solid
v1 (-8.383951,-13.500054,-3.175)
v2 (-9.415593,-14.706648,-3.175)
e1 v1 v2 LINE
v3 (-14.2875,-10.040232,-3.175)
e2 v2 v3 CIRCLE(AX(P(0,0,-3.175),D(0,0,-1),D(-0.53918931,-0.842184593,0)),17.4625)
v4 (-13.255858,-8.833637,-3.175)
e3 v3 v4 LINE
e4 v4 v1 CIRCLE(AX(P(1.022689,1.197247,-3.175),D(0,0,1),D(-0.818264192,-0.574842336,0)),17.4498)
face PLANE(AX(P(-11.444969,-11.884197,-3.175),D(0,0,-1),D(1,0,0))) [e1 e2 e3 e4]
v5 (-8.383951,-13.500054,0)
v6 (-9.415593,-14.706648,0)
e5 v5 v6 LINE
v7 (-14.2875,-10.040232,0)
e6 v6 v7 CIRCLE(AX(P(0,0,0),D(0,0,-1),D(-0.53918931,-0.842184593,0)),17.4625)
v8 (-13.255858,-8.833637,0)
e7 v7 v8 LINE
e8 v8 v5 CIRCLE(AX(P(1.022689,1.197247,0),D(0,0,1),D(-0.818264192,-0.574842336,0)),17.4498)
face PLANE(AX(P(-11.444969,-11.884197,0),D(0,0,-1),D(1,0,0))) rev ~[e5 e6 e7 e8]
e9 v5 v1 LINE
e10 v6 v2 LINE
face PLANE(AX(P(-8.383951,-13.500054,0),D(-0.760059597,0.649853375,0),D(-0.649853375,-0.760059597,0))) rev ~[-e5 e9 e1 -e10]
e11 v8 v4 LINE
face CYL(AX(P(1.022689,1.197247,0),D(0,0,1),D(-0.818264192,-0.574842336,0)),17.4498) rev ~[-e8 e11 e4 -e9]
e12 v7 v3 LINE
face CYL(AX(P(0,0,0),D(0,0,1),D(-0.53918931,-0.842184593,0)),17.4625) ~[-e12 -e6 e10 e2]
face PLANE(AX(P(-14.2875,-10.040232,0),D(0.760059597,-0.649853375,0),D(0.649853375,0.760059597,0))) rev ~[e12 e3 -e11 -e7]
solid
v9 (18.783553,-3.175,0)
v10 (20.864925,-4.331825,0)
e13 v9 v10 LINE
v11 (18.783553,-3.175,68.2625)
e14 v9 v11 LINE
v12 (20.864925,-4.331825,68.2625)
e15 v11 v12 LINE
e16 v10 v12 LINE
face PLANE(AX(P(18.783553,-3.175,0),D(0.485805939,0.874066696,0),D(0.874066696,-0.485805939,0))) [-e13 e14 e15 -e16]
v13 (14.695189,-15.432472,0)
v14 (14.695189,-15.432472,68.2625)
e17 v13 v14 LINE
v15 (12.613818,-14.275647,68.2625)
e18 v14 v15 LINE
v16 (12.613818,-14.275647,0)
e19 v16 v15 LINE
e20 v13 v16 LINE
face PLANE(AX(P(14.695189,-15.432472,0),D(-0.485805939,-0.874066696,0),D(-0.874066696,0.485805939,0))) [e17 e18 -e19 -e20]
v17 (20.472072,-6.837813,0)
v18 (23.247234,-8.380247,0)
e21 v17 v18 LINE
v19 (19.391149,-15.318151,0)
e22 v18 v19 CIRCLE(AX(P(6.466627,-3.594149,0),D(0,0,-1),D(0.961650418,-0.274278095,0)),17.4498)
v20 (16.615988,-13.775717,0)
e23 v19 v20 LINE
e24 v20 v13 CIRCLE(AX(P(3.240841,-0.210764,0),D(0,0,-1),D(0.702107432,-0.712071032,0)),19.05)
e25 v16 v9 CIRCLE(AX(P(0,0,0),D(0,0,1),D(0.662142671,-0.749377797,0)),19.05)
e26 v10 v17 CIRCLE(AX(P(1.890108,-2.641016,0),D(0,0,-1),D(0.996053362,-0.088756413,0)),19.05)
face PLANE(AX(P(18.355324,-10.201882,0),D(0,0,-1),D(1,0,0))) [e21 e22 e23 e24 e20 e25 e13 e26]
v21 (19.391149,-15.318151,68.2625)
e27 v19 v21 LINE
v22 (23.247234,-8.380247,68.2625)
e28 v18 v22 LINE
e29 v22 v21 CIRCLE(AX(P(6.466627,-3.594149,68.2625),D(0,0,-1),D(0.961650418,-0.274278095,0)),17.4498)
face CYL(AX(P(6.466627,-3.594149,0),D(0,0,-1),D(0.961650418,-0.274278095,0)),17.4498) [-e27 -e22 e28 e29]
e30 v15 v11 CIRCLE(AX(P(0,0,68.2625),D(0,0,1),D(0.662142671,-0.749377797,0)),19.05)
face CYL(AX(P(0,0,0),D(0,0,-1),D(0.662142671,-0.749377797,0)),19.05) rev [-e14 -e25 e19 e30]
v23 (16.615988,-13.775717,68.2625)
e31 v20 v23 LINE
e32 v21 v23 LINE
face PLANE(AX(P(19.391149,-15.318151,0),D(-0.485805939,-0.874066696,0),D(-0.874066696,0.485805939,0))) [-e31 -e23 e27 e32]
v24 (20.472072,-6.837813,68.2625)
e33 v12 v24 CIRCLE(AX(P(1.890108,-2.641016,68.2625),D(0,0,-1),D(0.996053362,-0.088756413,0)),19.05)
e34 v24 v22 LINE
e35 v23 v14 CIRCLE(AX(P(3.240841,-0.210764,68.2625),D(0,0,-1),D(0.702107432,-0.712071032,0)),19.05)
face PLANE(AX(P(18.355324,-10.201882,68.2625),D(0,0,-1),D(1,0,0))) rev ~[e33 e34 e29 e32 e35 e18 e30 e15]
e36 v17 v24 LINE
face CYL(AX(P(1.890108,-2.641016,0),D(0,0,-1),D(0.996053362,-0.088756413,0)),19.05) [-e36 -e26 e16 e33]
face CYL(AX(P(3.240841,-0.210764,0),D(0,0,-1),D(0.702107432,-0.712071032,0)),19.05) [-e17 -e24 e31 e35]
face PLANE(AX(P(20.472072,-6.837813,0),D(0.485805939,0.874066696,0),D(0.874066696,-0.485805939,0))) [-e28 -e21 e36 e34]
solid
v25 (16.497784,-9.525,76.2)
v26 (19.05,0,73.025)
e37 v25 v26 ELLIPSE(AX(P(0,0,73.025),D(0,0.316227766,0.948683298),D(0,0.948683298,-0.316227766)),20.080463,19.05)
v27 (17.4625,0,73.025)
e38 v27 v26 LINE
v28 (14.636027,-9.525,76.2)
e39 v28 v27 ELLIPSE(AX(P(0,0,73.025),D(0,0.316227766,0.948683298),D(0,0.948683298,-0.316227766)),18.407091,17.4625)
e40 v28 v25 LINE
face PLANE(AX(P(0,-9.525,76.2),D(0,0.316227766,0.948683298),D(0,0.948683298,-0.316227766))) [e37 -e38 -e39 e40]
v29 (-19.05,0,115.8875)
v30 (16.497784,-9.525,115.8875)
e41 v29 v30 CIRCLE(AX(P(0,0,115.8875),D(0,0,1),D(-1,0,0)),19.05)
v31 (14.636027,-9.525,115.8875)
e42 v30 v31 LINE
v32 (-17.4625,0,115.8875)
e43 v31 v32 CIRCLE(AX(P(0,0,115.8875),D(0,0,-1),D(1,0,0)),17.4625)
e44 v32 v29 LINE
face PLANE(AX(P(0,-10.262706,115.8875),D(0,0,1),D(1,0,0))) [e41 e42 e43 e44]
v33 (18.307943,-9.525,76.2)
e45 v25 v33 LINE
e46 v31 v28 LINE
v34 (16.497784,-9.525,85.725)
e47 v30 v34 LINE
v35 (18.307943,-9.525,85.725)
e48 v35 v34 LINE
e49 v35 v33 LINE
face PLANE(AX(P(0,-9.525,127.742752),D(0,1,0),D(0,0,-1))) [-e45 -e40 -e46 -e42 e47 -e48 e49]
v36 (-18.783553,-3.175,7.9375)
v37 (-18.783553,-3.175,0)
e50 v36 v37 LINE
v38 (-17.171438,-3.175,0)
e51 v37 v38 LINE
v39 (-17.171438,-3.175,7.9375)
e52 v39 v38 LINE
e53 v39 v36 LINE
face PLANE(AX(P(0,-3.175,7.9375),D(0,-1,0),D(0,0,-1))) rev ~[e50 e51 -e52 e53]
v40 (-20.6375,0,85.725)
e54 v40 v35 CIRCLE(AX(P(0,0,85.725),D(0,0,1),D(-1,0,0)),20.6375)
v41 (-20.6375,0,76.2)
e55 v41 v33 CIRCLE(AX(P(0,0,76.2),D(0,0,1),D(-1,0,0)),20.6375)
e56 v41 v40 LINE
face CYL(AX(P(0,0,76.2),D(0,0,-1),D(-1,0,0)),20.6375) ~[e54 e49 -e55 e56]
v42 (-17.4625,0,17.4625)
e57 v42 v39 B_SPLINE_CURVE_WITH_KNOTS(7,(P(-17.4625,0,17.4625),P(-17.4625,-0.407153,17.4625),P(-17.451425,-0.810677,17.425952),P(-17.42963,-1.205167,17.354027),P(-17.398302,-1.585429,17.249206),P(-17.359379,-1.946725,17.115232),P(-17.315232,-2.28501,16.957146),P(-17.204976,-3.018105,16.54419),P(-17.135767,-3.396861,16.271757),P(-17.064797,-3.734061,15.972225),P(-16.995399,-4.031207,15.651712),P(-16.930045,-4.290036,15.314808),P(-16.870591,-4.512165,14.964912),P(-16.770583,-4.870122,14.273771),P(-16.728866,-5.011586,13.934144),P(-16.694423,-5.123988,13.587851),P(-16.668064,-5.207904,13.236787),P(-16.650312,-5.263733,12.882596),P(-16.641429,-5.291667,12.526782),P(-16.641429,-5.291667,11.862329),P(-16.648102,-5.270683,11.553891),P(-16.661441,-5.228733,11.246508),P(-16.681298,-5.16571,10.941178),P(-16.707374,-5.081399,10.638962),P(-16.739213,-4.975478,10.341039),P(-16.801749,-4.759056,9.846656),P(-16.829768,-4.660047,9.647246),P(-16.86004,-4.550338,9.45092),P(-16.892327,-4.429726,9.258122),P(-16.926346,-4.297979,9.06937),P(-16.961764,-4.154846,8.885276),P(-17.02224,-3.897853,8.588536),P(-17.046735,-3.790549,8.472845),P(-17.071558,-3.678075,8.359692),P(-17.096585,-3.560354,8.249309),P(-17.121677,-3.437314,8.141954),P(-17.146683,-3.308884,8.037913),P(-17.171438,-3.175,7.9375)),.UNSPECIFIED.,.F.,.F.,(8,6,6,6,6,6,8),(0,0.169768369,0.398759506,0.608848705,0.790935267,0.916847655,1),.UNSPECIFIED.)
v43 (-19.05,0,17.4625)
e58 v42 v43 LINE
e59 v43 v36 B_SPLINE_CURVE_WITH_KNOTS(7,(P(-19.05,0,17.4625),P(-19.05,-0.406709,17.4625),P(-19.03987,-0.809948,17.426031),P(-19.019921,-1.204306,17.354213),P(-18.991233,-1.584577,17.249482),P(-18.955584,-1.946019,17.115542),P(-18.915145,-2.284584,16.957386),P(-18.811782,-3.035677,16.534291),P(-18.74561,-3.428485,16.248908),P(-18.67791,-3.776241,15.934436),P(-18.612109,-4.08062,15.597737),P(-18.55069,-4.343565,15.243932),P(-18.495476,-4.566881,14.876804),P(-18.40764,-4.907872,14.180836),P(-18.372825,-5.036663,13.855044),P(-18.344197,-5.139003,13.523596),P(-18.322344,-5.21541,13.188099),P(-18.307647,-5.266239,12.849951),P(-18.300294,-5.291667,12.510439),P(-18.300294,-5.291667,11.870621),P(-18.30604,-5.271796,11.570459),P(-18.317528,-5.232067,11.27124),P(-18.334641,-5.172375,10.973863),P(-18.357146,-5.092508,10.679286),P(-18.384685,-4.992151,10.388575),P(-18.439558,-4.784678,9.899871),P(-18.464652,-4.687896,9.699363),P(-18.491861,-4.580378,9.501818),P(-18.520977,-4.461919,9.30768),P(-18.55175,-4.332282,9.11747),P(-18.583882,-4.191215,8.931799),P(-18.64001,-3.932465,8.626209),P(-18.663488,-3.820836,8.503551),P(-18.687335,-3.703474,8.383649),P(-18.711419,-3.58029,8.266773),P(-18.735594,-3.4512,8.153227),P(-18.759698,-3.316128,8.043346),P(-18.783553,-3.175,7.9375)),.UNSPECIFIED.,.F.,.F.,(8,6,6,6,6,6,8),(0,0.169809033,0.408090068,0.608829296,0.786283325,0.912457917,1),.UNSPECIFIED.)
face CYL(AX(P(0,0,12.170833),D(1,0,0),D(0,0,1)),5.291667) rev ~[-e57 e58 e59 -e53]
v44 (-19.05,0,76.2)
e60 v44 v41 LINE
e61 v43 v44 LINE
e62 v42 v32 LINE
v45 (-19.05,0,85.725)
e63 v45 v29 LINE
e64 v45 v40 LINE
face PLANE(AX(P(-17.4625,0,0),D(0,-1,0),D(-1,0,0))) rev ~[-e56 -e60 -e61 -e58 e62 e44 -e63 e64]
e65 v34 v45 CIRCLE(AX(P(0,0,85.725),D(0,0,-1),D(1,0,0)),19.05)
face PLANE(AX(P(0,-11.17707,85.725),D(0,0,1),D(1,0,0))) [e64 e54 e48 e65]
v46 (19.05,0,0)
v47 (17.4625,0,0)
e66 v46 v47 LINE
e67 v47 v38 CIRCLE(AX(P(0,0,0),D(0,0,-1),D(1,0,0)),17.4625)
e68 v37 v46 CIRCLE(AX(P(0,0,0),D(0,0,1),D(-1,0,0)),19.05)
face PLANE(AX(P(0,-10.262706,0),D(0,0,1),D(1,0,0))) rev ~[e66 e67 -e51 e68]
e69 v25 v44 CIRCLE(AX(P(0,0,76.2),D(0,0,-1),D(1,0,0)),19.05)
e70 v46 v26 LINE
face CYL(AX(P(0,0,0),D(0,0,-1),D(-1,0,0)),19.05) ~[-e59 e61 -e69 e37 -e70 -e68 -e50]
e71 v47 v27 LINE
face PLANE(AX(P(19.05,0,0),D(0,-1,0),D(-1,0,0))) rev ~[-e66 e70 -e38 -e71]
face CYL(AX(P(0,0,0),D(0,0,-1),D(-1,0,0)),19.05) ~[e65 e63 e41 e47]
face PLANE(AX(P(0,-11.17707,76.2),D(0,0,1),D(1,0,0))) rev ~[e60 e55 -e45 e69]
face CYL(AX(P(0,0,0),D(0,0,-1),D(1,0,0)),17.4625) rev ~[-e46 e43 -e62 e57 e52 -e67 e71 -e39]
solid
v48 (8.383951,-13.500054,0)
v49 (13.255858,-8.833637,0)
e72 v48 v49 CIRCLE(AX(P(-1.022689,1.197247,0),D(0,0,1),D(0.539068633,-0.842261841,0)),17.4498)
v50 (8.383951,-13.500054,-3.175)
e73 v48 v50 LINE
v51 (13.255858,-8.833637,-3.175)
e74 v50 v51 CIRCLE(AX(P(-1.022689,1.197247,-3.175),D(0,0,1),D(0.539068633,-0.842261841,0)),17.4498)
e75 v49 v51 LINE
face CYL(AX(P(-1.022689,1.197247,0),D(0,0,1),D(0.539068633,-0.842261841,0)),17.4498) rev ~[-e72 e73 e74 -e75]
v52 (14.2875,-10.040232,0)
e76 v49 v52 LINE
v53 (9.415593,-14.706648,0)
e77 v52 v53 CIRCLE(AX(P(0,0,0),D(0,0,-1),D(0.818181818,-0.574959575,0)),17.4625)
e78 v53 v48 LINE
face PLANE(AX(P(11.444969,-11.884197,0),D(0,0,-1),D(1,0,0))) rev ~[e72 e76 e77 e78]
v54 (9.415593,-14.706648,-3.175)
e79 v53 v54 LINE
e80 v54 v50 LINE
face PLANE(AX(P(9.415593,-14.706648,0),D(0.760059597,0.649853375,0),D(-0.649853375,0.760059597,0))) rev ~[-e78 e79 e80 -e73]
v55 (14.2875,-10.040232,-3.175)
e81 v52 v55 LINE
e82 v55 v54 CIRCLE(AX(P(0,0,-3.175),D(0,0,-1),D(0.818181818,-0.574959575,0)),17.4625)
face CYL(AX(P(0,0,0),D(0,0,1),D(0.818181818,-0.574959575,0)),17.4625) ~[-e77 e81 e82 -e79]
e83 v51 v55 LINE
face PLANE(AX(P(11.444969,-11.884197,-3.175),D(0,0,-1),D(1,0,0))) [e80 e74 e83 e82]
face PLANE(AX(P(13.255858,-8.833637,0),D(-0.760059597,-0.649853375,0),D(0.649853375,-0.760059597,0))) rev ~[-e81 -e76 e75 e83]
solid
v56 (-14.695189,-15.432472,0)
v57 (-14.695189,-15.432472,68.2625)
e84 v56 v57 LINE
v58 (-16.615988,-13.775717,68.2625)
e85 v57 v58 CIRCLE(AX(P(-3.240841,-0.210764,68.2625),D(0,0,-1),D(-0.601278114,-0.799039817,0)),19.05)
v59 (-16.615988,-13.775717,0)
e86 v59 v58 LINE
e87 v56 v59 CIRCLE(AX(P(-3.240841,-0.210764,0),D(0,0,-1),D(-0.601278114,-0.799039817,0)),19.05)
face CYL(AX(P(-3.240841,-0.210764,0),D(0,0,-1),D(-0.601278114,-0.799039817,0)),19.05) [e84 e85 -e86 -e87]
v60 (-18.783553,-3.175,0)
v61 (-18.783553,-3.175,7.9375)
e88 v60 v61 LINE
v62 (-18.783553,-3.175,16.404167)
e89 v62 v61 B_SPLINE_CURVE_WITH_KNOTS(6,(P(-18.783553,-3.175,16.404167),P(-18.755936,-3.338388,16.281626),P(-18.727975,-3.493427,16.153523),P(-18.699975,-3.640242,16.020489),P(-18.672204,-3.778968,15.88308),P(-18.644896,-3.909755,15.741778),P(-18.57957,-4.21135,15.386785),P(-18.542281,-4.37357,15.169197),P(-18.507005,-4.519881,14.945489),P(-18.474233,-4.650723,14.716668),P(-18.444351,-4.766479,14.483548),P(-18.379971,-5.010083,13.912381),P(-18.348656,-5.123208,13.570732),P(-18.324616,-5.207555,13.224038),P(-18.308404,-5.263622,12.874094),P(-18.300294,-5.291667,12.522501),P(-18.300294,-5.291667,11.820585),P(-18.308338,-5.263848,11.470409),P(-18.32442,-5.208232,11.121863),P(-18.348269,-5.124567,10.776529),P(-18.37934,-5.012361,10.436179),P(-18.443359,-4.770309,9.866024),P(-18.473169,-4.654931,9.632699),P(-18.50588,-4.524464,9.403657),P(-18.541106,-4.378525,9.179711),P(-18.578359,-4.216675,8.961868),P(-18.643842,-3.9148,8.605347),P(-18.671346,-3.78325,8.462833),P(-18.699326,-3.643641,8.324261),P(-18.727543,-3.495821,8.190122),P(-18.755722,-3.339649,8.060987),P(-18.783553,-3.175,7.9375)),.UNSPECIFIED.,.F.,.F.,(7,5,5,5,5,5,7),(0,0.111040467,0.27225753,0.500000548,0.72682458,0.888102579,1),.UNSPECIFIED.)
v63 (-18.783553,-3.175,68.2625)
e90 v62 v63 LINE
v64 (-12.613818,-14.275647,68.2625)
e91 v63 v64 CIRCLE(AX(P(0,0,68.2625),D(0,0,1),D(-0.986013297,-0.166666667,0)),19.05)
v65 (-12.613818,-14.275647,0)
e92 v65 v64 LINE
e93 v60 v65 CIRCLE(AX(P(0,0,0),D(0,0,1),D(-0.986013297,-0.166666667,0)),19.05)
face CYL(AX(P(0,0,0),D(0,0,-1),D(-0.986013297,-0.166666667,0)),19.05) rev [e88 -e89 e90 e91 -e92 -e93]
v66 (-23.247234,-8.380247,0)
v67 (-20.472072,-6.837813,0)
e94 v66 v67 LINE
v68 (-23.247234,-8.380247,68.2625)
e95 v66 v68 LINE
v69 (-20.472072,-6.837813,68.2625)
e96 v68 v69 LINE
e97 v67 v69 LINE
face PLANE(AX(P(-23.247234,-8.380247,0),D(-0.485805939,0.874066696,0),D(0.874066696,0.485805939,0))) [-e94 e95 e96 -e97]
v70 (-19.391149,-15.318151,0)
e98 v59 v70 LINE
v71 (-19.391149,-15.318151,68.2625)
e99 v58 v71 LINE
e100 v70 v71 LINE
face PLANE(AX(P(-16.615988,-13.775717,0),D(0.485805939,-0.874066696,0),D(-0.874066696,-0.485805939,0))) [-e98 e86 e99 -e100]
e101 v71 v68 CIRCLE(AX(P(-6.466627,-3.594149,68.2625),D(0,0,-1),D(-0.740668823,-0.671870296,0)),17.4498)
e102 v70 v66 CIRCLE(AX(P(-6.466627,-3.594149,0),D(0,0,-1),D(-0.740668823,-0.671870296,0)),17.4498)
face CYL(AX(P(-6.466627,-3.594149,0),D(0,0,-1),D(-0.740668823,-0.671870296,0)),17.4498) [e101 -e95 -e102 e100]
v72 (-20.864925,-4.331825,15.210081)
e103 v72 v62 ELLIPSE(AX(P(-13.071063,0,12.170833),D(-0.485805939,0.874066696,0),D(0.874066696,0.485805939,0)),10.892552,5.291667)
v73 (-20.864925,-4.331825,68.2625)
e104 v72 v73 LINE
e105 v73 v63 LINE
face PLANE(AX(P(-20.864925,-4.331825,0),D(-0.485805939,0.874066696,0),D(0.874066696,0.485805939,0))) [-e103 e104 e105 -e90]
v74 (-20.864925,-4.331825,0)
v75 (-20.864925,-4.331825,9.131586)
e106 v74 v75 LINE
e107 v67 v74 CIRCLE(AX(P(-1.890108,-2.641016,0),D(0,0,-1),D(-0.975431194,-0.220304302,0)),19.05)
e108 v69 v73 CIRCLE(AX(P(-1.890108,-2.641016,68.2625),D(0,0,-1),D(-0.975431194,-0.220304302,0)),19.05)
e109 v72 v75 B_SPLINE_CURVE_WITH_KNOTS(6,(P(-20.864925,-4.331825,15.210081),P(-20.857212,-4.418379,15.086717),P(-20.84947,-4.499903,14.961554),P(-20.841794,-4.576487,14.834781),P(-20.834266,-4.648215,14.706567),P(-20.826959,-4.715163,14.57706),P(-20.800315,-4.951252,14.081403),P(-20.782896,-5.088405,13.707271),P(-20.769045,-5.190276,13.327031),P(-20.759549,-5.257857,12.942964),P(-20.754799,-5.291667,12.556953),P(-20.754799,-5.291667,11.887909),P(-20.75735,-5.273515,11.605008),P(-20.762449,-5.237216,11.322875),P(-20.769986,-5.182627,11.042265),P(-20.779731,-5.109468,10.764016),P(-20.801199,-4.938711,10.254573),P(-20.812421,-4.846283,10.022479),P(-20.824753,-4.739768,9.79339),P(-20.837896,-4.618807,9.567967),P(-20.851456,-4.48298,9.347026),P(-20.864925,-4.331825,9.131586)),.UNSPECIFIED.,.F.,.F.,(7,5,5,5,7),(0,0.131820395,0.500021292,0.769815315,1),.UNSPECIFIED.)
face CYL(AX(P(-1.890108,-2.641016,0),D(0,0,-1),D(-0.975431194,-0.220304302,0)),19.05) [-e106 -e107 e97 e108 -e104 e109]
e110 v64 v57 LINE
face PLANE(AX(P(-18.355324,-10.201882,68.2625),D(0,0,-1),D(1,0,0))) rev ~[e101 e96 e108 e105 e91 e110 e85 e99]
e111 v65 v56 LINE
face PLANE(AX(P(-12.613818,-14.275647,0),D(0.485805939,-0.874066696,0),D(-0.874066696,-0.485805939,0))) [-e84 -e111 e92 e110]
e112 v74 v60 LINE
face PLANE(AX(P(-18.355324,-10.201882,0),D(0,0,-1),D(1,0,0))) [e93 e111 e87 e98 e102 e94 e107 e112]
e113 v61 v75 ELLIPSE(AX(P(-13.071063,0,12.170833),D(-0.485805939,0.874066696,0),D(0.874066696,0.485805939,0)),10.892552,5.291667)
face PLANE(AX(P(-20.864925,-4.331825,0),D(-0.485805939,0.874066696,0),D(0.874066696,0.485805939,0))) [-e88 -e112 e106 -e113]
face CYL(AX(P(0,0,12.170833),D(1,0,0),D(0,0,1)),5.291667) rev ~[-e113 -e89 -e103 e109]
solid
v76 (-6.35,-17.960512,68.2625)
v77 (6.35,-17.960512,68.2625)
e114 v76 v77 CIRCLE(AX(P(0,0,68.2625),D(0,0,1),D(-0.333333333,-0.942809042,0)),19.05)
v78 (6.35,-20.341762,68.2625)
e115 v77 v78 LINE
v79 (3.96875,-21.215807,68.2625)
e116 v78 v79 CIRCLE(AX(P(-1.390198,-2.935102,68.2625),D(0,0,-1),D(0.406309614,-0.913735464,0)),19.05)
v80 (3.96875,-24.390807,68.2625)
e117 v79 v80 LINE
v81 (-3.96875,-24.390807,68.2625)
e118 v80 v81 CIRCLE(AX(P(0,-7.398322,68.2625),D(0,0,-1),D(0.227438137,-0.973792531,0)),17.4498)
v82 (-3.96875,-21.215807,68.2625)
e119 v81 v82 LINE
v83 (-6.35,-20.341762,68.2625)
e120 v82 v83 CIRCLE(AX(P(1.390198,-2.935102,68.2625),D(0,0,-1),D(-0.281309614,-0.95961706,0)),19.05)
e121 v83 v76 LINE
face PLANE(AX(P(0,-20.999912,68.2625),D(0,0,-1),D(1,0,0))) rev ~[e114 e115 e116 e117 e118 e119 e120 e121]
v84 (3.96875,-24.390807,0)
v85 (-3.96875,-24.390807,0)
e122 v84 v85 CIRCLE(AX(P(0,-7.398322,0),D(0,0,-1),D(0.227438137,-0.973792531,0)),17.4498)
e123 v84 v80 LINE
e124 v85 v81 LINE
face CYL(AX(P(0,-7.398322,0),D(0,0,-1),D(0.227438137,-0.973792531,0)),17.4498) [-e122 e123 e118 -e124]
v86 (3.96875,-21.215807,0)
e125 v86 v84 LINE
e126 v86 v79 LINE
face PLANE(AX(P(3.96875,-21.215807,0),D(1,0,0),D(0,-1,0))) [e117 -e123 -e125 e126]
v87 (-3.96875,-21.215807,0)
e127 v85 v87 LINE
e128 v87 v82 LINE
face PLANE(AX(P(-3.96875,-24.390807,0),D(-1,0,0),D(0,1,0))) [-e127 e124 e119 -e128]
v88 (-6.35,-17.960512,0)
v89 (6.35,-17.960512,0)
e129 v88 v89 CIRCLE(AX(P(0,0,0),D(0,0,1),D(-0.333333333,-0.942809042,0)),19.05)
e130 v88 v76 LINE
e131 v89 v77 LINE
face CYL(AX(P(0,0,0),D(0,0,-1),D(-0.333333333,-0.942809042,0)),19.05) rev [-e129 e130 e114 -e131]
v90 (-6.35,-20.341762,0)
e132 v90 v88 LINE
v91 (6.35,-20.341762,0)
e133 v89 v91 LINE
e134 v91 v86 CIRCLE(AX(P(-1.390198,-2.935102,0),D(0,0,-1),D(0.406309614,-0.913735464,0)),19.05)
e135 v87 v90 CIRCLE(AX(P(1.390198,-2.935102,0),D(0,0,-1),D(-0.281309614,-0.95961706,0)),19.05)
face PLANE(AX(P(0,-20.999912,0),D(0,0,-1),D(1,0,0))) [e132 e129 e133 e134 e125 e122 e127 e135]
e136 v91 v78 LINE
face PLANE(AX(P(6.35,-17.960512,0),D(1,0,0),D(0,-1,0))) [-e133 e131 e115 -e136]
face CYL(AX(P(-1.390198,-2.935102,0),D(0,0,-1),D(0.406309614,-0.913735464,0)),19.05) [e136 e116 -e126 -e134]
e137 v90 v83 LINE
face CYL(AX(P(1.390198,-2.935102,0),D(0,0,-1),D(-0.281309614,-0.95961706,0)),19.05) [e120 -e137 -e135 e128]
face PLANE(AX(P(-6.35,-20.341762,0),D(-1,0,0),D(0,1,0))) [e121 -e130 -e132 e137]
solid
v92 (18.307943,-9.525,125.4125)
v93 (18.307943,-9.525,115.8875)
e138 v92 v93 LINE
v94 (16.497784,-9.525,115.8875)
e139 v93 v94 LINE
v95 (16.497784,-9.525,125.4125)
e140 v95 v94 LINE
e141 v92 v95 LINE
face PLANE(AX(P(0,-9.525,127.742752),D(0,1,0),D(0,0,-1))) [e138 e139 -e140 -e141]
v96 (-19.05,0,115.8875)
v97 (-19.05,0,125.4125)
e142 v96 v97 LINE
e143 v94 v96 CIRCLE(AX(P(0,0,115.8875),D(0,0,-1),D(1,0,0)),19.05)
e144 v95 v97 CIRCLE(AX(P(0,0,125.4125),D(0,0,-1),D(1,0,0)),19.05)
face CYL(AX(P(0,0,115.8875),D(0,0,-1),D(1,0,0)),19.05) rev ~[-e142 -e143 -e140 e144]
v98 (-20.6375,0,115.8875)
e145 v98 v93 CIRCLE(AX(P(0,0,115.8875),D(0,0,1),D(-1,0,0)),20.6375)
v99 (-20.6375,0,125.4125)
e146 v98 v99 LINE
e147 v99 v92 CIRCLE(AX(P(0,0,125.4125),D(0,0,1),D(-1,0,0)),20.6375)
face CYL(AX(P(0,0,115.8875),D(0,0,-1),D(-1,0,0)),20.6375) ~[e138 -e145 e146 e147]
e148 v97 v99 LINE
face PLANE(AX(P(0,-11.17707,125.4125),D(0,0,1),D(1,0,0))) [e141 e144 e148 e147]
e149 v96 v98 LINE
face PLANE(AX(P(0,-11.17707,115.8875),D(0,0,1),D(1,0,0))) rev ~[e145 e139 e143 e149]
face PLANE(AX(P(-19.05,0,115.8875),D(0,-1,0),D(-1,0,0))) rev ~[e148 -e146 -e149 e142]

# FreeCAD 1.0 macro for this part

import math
import FreeCAD as App
import Part
import Sketcher

V = App.Vector
Q = App.Units.Quantity


def add_polygon(sketch, points):
    """Adds a closed chain of lines whose ends are joined by coincident constraints."""
    first, n = sketch.GeometryCount, len(points)
    for a, b in zip(points, points[1:] + points[:1]):
        sketch.addGeometry(Part.LineSegment(App.Vector(*a, 0), App.Vector(*b, 0)), False)
    for i in range(n):
        sketch.addConstraint(Sketcher.Constraint("Coincident", first + i, 2, first + (i + 1) % n, 1))

doc = App.newDocument("Part")
params = doc.addObject("Spreadsheet::Sheet", "Params")
for row, (alias, value) in enumerate([
    ("sketch1_radius", "0.75 in"),
    ("sketch1_radius2", "0.6875 in"),
    ("pad1_length", "4.5625 in"),
    ("sketch2_radius", "0.75 in"),
    ("sketch2_radius2", "0.8125 in"),
    ("pad2_length", "0.375 in"),
    ("sketch3_radius", "0.6875 in"),
    ("sketch3_radius2", "0.687 in"),
    ("sketch3_length", "0.0625 in"),
    ("pad3_length", "0.125 in"),
    ("sketch4_radius", "0.6875 in"),
    ("sketch4_radius2", "0.687 in"),
    ("sketch4_length", "0.0625 in"),
    ("pad4_length", "0.125 in"),
    ("sketch5_radius", "0.75 in"),
    ("sketch5_radius2", "0.687 in"),
    ("sketch5_height", "0.09375 in"),
    ("sketch5_height2", "0.125 in"),
    ("pad5_length", "2.6875 in"),
    ("sketch6_radius", "0.75 in"),
    ("sketch6_radius2", "0.687 in"),
    ("sketch6_length", "0.09375 in"),
    ("sketch6_length2", "0.125 in"),
    ("pad6_length", "2.6875 in"),
    ("sketch7_radius", "0.75 in"),
    ("sketch7_radius2", "0.687 in"),
    ("sketch7_length", "0.09375 in"),
    ("sketch7_length2", "0.125 in"),
    ("pad7_length", "2.6875 in"),
    ("sketch8_radius", "0.75 in"),
    ("sketch8_radius2", "0.8125 in"),
    ("pad8_length", "0.375 in"),
    ("sketch9_width", "0.375 in"),
    ("pad9_length", "1 in"),
    ("pad10_length", "1 in"),
], start=1):
    params.set(f"A{row}", alias)
    params.set(f"B{row}", "=" + value)
    params.setAlias(f"B{row}", alias)

body = doc.addObject("PartDesign::Body", "Body")

# Sketch on XY plane
sketch1 = body.newObject("Sketcher::SketchObject", "Sketch")
sketch1.AttachmentSupport = (doc.getObject("XY_Plane"), [""])
sketch1.MapMode = "FlatFace"
sketch1.addGeometry([
    Part.LineSegment(V(-17.5, 0, 0), V(-19.1, 0, 0)),
    Part.ArcOfCircle(Part.Circle(V(0, 0, 0), V(0, 0, 1), 19.1), math.radians(180), math.radians(360)),
    Part.LineSegment(V(19.1, 0, 0), V(17.5, 0, 0)),
    Part.ArcOfCircle(Part.Circle(V(0, 0, 0), V(0, 0, 1), 17.5), math.radians(180), math.radians(360)),
], False)
sketch1.addConstraint([
    Sketcher.Constraint("Coincident", 0, 2, 1, 1),
    Sketcher.Constraint("Coincident", 1, 2, 2, 1),
    Sketcher.Constraint("Coincident", 2, 2, 3, 2),
    Sketcher.Constraint("Coincident", 3, 1, 0, 1),
    Sketcher.Constraint("Horizontal", 0),
    Sketcher.Constraint("Horizontal", 2),
    Sketcher.Constraint("Coincident", 1, 3, -1, 1),
    Sketcher.Constraint("Coincident", 3, 3, -1, 1),
    Sketcher.Constraint("PointOnObject", 0, 2, -1),
    Sketcher.Constraint("PointOnObject", 1, 2, -1),
    Sketcher.Constraint("Radius", 1, Q("0.75 in")),
    Sketcher.Constraint("Radius", 3, Q("0.6875 in")),
])
sketch1.setExpression("Constraints[10]", "Params.sketch1_radius")
sketch1.setExpression("Constraints[11]", "Params.sketch1_radius2")
pad1 = body.newObject("PartDesign::Pad", "Pad")
pad1.Profile = sketch1
pad1.setExpression("Length", "Params.pad1_length")

# Sketch on XY plane
sketch2 = body.newObject("Sketcher::SketchObject", "Sketch001")
sketch2.AttachmentSupport = (doc.getObject("XY_Plane"), [""])
sketch2.MapMode = "FlatFace"
sketch2.AttachmentOffset = App.Placement(V(0, 0, 3 * 25.4), App.Rotation())
sketch2.addGeometry([
    Part.LineSegment(V(20.6, 0, 0), V(19.1, 0, 0)),
    Part.ArcOfCircle(Part.Circle(V(0, 0, 0), V(0, 0, 1), 19.1), math.radians(180), math.radians(360)),
    Part.LineSegment(V(-19.1, 0, 0), V(-20.6, 0, 0)),
    Part.ArcOfCircle(Part.Circle(V(0, 0, 0), V(0, 0, 1), 20.6), math.radians(180), math.radians(360)),
], False)
sketch2.addConstraint([
    Sketcher.Constraint("Coincident", 0, 2, 1, 2),
    Sketcher.Constraint("Coincident", 1, 1, 2, 1),
    Sketcher.Constraint("Coincident", 2, 2, 3, 1),
    Sketcher.Constraint("Coincident", 3, 2, 0, 1),
    Sketcher.Constraint("Horizontal", 0),
    Sketcher.Constraint("Horizontal", 2),
    Sketcher.Constraint("Coincident", 1, 3, -1, 1),
    Sketcher.Constraint("Coincident", 3, 3, -1, 1),
    Sketcher.Constraint("PointOnObject", 0, 2, -1),
    Sketcher.Constraint("PointOnObject", 1, 1, -1),
    Sketcher.Constraint("Radius", 1, Q("0.75 in")),
    Sketcher.Constraint("Radius", 3, Q("0.8125 in")),
])
sketch2.setExpression("Constraints[10]", "Params.sketch2_radius")
sketch2.setExpression("Constraints[11]", "Params.sketch2_radius2")
pad2 = body.newObject("PartDesign::Pad", "Pad001")
pad2.Profile = sketch2
pad2.setExpression("Length", "Params.pad2_length")
body2 = doc.addObject("PartDesign::Body", "Body001")

# Sketch on XY plane
sketch3 = body2.newObject("Sketcher::SketchObject", "Sketch002")
sketch3.AttachmentSupport = (doc.getObject("XY_Plane001"), [""])
sketch3.MapMode = "FlatFace"
sketch3.addGeometry([
    Part.LineSegment(V(-8.4, -13.5, 0), V(-9.4, -14.7, 0)),
    Part.ArcOfCircle(Part.Circle(V(0, 0, 0), V(0, 0, 1), 17.5), math.radians(-145), math.radians(-123)),
    Part.LineSegment(V(-14.3, -10, 0), V(-13.3, -8.8, 0)),
    Part.ArcOfCircle(Part.Circle(V(1, 1.2, 0), V(0, 0, 1), 17.4), math.radians(-145), math.radians(-123)),
], False)
sketch3.addConstraint([
    Sketcher.Constraint("Coincident", 0, 2, 1, 2),
    Sketcher.Constraint("Coincident", 1, 1, 2, 1),
    Sketcher.Constraint("Coincident", 2, 2, 3, 1),
    Sketcher.Constraint("Coincident", 3, 2, 0, 1),
    Sketcher.Constraint("Coincident", 1, 3, -1, 1),
    Sketcher.Constraint("Parallel", 0, 2),
    Sketcher.Constraint("Equal", 0, 2),
    Sketcher.Constraint("Radius", 1, Q("0.6875 in")),
    Sketcher.Constraint("Radius", 3, Q("0.687 in")),
    Sketcher.Constraint("Distance", 0, Q("0.0625 in")),
    Sketcher.Constraint("DistanceX", 1, 1, -1, 1, Q("0.5625 in")),
    Sketcher.Constraint("DistanceY", 3, 2, 3, 3, Q("14.697301 mm")),
    Sketcher.Constraint("DistanceX", -1, 1, 3, 3, Q("1.022689 mm")),
])
sketch3.setExpression("Constraints[7]", "Params.sketch3_radius")
sketch3.setExpression("Constraints[8]", "Params.sketch3_radius2")
sketch3.setExpression("Constraints[9]", "Params.sketch3_length")
pad3 = body2.newObject("PartDesign::Pad", "Pad002")
pad3.Profile = sketch3
pad3.setExpression("Length", "Params.pad3_length")
pad3.Reversed = True
body3 = doc.addObject("PartDesign::Body", "Body002")

# Sketch on XY plane
sketch4 = body3.newObject("Sketcher::SketchObject", "Sketch003")
sketch4.AttachmentSupport = (doc.getObject("XY_Plane002"), [""])
sketch4.MapMode = "FlatFace"
sketch4.addGeometry([
    Part.LineSegment(V(13.3, -8.8, 0), V(14.3, -10, 0)),
    Part.ArcOfCircle(Part.Circle(V(0, 0, 0), V(0, 0, 1), 17.5), math.radians(-57), math.radians(-35)),
    Part.LineSegment(V(9.4, -14.7, 0), V(8.4, -13.5, 0)),
    Part.ArcOfCircle(Part.Circle(V(-1, 1.2, 0), V(0, 0, 1), 17.4), math.radians(-57), math.radians(-35)),
], False)
sketch4.addConstraint([
    Sketcher.Constraint("Coincident", 0, 2, 1, 2),
    Sketcher.Constraint("Coincident", 1, 1, 2, 1),
    Sketcher.Constraint("Coincident", 2, 2, 3, 1),
    Sketcher.Constraint("Coincident", 3, 2, 0, 1),
    Sketcher.Constraint("Coincident", 1, 3, -1, 1),
    Sketcher.Constraint("Parallel", 0, 2),
    Sketcher.Constraint("Equal", 0, 2),
    Sketcher.Constraint("Radius", 1, Q("0.6875 in")),
    Sketcher.Constraint("Radius", 3, Q("0.687 in")),
    Sketcher.Constraint("Distance", 0, Q("0.0625 in")),
    Sketcher.Constraint("DistanceX", -1, 1, 0, 2, Q("0.5625 in")),
    Sketcher.Constraint("DistanceY", 2, 2, 3, 3, Q("14.697301 mm")),
    Sketcher.Constraint("DistanceX", 3, 3, -1, 1, Q("1.022689 mm")),
])
sketch4.setExpression("Constraints[7]", "Params.sketch4_radius")
sketch4.setExpression("Constraints[8]", "Params.sketch4_radius2")
sketch4.setExpression("Constraints[9]", "Params.sketch4_length")
pad4 = body3.newObject("PartDesign::Pad", "Pad003")
pad4.Profile = sketch4
pad4.setExpression("Length", "Params.pad4_length")
pad4.Reversed = True
body4 = doc.addObject("PartDesign::Body", "Body003")

# Sketch on XY plane
sketch5 = body4.newObject("Sketcher::SketchObject", "Sketch004")
sketch5.AttachmentSupport = (doc.getObject("XY_Plane003"), [""])
sketch5.MapMode = "FlatFace"
sketch5.addGeometry([
    Part.ArcOfCircle(Part.Circle(V(0, 0, 0), V(0, 0, 1), 19), math.radians(-109), math.radians(-71)),  # 0
    Part.LineSegment(V(6.3, -18, 0), V(6.3, -20.3, 0)),  # 1
    Part.ArcOfCircle(Part.Circle(V(-1.4, -2.9, 0), V(0, 0, 1), 19.1), math.radians(-73.66), math.radians(-66.03)),  # 2
    Part.LineSegment(V(4, -21.2, 0), V(4, -24.4, 0)),  # 3
    Part.ArcOfCircle(Part.Circle(V(0, -7.4, 0), V(0, 0, 1), 17.4), math.radians(-103), math.radians(-77)),  # 4
    Part.LineSegment(V(-4, -24.4, 0), V(-4, -21.2, 0)),  # 5
    Part.ArcOfCircle(Part.Circle(V(1.4, -2.9, 0), V(0, 0, 1), 19.1), math.radians(-113.97), math.radians(-106.34)),  # 6
    Part.LineSegment(V(-6.3, -20.3, 0), V(-6.3, -18, 0)),  # 7
], False)
sketch5.addConstraint([
    Sketcher.Constraint("Coincident", 0, 2, 1, 1),
    Sketcher.Constraint("Coincident", 1, 2, 2, 2),
    Sketcher.Constraint("Coincident", 2, 1, 3, 1),
    Sketcher.Constraint("Coincident", 3, 2, 4, 2),
    Sketcher.Constraint("Coincident", 4, 1, 5, 1),
    Sketcher.Constraint("Coincident", 5, 2, 6, 2),
    Sketcher.Constraint("Coincident", 6, 1, 7, 1),
    Sketcher.Constraint("Coincident", 7, 2, 0, 1),
    Sketcher.Constraint("Vertical", 1),
    Sketcher.Constraint("Vertical", 3),
    Sketcher.Constraint("Vertical", 5),
    Sketcher.Constraint("Vertical", 7),
    Sketcher.Constraint("Coincident", 0, 3, -1, 1),
    Sketcher.Constraint("Equal", 0, 2),
    Sketcher.Constraint("Equal", 2, 6),
    Sketcher.Constraint("Symmetric", 2, 3, 6, 3, -2),
    Sketcher.Constraint("Symmetric", 3, 2, 4, 1, -2),
    Sketcher.Constraint("Horizontal", 1, 2, 6, 1),
    Sketcher.Constraint("Radius", 0, Q("0.75 in")),
    Sketcher.Constraint("Radius", 4, Q("0.687 in")),
    Sketcher.Constraint("DistanceX", 6, 1, 1, 2, Q("0.5 in")),
    Sketcher.Constraint("DistanceY", 1, 2, 1, 1, Q("0.09375 in")),
    Sketcher.Constraint("DistanceY", 3, 2, 3, 1, Q("0.125 in")),
    Sketcher.Constraint("DistanceX", -1, 1, 2, 1, Q("0.15625 in")),
    Sketcher.Constraint("DistanceX", 2, 3, -1, 1, Q("1.390198 mm")),
])
sketch5.setExpression("Constraints[18]", "Params.sketch5_radius")
sketch5.setExpression("Constraints[19]", "Params.sketch5_radius2")
sketch5.setExpression("Constraints[21]", "Params.sketch5_height")
sketch5.setExpression("Constraints[22]", "Params.sketch5_height2")
pad5 = body4.newObject("PartDesign::Pad", "Pad004")
pad5.Profile = sketch5
pad5.setExpression("Length", "Params.pad5_length")
body5 = doc.addObject("PartDesign::Body", "Body004")

# Sketch on XY plane
sketch6 = body5.newObject("Sketcher::SketchObject", "Sketch005")
sketch6.AttachmentSupport = (doc.getObject("XY_Plane004"), [""])
sketch6.MapMode = "FlatFace"
sketch6.addGeometry([
    Part.LineSegment(V(-20.9, -4.3, 0), V(-18.8, -3.2, 0)),  # 0
    Part.ArcOfCircle(Part.Circle(V(0, 0, 0), V(0, 0, 1), 19.1), math.radians(-170), math.radians(-131)),  # 1
    Part.LineSegment(V(-12.6, -14.3, 0), V(-14.7, -15.4, 0)),  # 2
    Part.ArcOfCircle(Part.Circle(V(-3.2, -0.2, 0), V(0, 0, 1), 19.1), math.radians(-134.6), math.radians(-126.96)),  # 3
    Part.LineSegment(V(-16.6, -13.8, 0), V(-19.4, -15.3, 0)),  # 4
    Part.ArcOfCircle(Part.Circle(V(-6.5, -3.6, 0), V(0, 0, 1), 17.4), math.radians(-164), math.radians(-138)),  # 5
    Part.LineSegment(V(-23.2, -8.4, 0), V(-20.5, -6.8, 0)),  # 6
    Part.ArcOfCircle(Part.Circle(V(-1.9, -2.6, 0), V(0, 0, 1), 19), math.radians(-174.91), math.radians(-167.27)),  # 7
], False)
sketch6.addConstraint([
    Sketcher.Constraint("Coincident", 0, 2, 1, 1),
    Sketcher.Constraint("Coincident", 1, 2, 2, 1),
    Sketcher.Constraint("Coincident", 2, 2, 3, 2),
    Sketcher.Constraint("Coincident", 3, 1, 4, 1),
    Sketcher.Constraint("Coincident", 4, 2, 5, 2),
    Sketcher.Constraint("Coincident", 5, 1, 6, 1),
    Sketcher.Constraint("Coincident", 6, 2, 7, 2),
    Sketcher.Constraint("Coincident", 7, 1, 0, 1),
    Sketcher.Constraint("Coincident", 1, 3, -1, 1),
    Sketcher.Constraint("Equal", 1, 3),
    Sketcher.Constraint("Equal", 3, 7),
    Sketcher.Constraint("Parallel", 0, 2),
    Sketcher.Constraint("Parallel", 2, 4),
    Sketcher.Constraint("Parallel", 4, 6),
    Sketcher.Constraint("Equal", 0, 2),
    Sketcher.Constraint("Equal", 4, 6),
    Sketcher.Constraint("Radius", 1, Q("0.75 in")),
    Sketcher.Constraint("Radius", 5, Q("0.687 in")),
    Sketcher.Constraint("Distance", 0, Q("0.09375 in")),
    Sketcher.Constraint("Distance", 4, Q("0.125 in")),
    Sketcher.Constraint("DistanceY", 0, 2, -1, 1, Q("0.125 in")),
    Sketcher.Constraint("DistanceY", 1, 2, 5, 3, Q("10.681498 mm")),
    Sketcher.Constraint("DistanceX", 3, 1, 2, 2, Q("1.920798 mm")),
    Sketcher.Constraint("DistanceY", 3, 1, 7, 3, Q("11.134701 mm")),
    Sketcher.Constraint("DistanceY", 1, 2, 5, 1, Q("5.895401 mm")),
    Sketcher.Constraint("DistanceX", 3, 3, -1, 1, Q("3.240841 mm")),
    Sketcher.Constraint("DistanceY", 5, 3, -1, 1, Q("3.594149 mm")),
])
sketch6.setExpression("Constraints[16]", "Params.sketch6_radius")
sketch6.setExpression("Constraints[17]", "Params.sketch6_radius2")
sketch6.setExpression("Constraints[18]", "Params.sketch6_length")
sketch6.setExpression("Constraints[19]", "Params.sketch6_length2")
pad6 = body5.newObject("PartDesign::Pad", "Pad005")
pad6.Profile = sketch6
pad6.setExpression("Length", "Params.pad6_length")
body6 = doc.addObject("PartDesign::Body", "Body005")

# Sketch on XY plane
sketch7 = body6.newObject("Sketcher::SketchObject", "Sketch006")
sketch7.AttachmentSupport = (doc.getObject("XY_Plane005"), [""])
sketch7.MapMode = "FlatFace"
sketch7.addGeometry([
    Part.ArcOfCircle(Part.Circle(V(0, 0, 0), V(0, 0, 1), 19.1), math.radians(-49), math.radians(-10)),  # 0
    Part.LineSegment(V(18.8, -3.2, 0), V(20.9, -4.3, 0)),  # 1
    Part.ArcOfCircle(Part.Circle(V(1.9, -2.6, 0), V(0, 0, 1), 19), math.radians(-12.73), math.radians(-5.09)),  # 2
    Part.LineSegment(V(20.5, -6.8, 0), V(23.2, -8.4, 0)),  # 3
    Part.ArcOfCircle(Part.Circle(V(6.5, -3.6, 0), V(0, 0, 1), 17.4), math.radians(-42), math.radians(-16)),  # 4
    Part.LineSegment(V(19.4, -15.3, 0), V(16.6, -13.8, 0)),  # 5
    Part.ArcOfCircle(Part.Circle(V(3.2, -0.2, 0), V(0, 0, 1), 19.1), math.radians(-53.04), math.radians(-45.4)),  # 6
    Part.LineSegment(V(14.7, -15.4, 0), V(12.6, -14.3, 0)),  # 7
], False)
sketch7.addConstraint([
    Sketcher.Constraint("Coincident", 0, 2, 1, 1),
    Sketcher.Constraint("Coincident", 1, 2, 2, 2),
    Sketcher.Constraint("Coincident", 2, 1, 3, 1),
    Sketcher.Constraint("Coincident", 3, 2, 4, 2),
    Sketcher.Constraint("Coincident", 4, 1, 5, 1),
    Sketcher.Constraint("Coincident", 5, 2, 6, 2),
    Sketcher.Constraint("Coincident", 6, 1, 7, 1),
    Sketcher.Constraint("Coincident", 7, 2, 0, 1),
    Sketcher.Constraint("Coincident", 0, 3, -1, 1),
    Sketcher.Constraint("Equal", 0, 2),
    Sketcher.Constraint("Equal", 2, 6),
    Sketcher.Constraint("Parallel", 1, 3),
    Sketcher.Constraint("Parallel", 3, 5),
    Sketcher.Constraint("Parallel", 5, 7),
    Sketcher.Constraint("Equal", 3, 5),
    Sketcher.Constraint("Equal", 1, 7),
    Sketcher.Constraint("Radius", 0, Q("0.75 in")),
    Sketcher.Constraint("Radius", 4, Q("0.687 in")),
    Sketcher.Constraint("Distance", 1, Q("0.09375 in")),
    Sketcher.Constraint("Distance", 3, Q("0.125 in")),
    Sketcher.Constraint("DistanceY", 0, 2, -1, 1, Q("0.125 in")),
    Sketcher.Constraint("DistanceX", 6, 1, 5, 2, Q("1.920798 mm")),
    Sketcher.Constraint("DistanceY", 7, 2, 3, 2, Q("5.895401 mm")),
    Sketcher.Constraint("DistanceX", -1, 1, 2, 3, Q("1.890108 mm")),
    Sketcher.Constraint("DistanceY", 4, 3, -1, 1, Q("3.594149 mm")),
    Sketcher.Constraint("DistanceX", -1, 1, 6, 3, Q("3.240841 mm")),
    Sketcher.Constraint("DistanceX", -1, 1, 4, 1, Q("19.391149 mm")),
])
sketch7.setExpression("Constraints[16]", "Params.sketch7_radius")
sketch7.setExpression("Constraints[17]", "Params.sketch7_radius2")
sketch7.setExpression("Constraints[18]", "Params.sketch7_length")
sketch7.setExpression("Constraints[19]", "Params.sketch7_length2")
pad7 = body6.newObject("PartDesign::Pad", "Pad006")
pad7.Profile = sketch7
pad7.setExpression("Length", "Params.pad7_length")
body7 = doc.addObject("PartDesign::Body", "Body006")

# Sketch on XY plane
sketch8 = body7.newObject("Sketcher::SketchObject", "Sketch007")
sketch8.AttachmentSupport = (doc.getObject("XY_Plane006"), [""])
sketch8.MapMode = "FlatFace"
sketch8.AttachmentOffset = App.Placement(V(0, 0, 4.5625 * 25.4), App.Rotation())
sketch8.addGeometry([
    Part.LineSegment(V(20.6, 0, 0), V(19.1, 0, 0)),
    Part.ArcOfCircle(Part.Circle(V(0, 0, 0), V(0, 0, 1), 19.1), math.radians(180), math.radians(360)),
    Part.LineSegment(V(-19.1, 0, 0), V(-20.6, 0, 0)),
    Part.ArcOfCircle(Part.Circle(V(0, 0, 0), V(0, 0, 1), 20.6), math.radians(180), math.radians(360)),
], False)
sketch8.addConstraint([
    Sketcher.Constraint("Coincident", 0, 2, 1, 2),
    Sketcher.Constraint("Coincident", 1, 1, 2, 1),
    Sketcher.Constraint("Coincident", 2, 2, 3, 1),
    Sketcher.Constraint("Coincident", 3, 2, 0, 1),
    Sketcher.Constraint("Horizontal", 0),
    Sketcher.Constraint("Horizontal", 2),
    Sketcher.Constraint("Coincident", 1, 3, -1, 1),
    Sketcher.Constraint("Coincident", 3, 3, -1, 1),
    Sketcher.Constraint("PointOnObject", 0, 2, -1),
    Sketcher.Constraint("PointOnObject", 1, 1, -1),
    Sketcher.Constraint("Radius", 1, Q("0.75 in")),
    Sketcher.Constraint("Radius", 3, Q("0.8125 in")),
])
sketch8.setExpression("Constraints[10]", "Params.sketch8_radius")
sketch8.setExpression("Constraints[11]", "Params.sketch8_radius2")
pad8 = body7.newObject("PartDesign::Pad", "Pad007")
pad8.Profile = sketch8
pad8.setExpression("Length", "Params.pad8_length")
body8 = doc.addObject("PartDesign::Body", "Body007")

# Sketch on YZ plane
sketch9 = body8.newObject("Sketcher::SketchObject", "Sketch008")
sketch9.AttachmentSupport = (doc.getObject("YZ_Plane007"), [""])
sketch9.MapMode = "FlatFace"
add_polygon(sketch9, [(-10, 128), (-10, 76), (0, 73), (0, 128)])  # lines 0-3
sketch9.addConstraint([
    Sketcher.Constraint("Vertical", 0),
    Sketcher.Constraint("Vertical", 2),
    Sketcher.Constraint("Horizontal", 3),
    Sketcher.Constraint("PointOnObject", 1, 2, -2),
    Sketcher.Constraint("DistanceY", -1, 1, 0, 2, Q("3 in")),
    Sketcher.Constraint("DistanceX", 3, 2, 3, 1, Q("0.375 in")),
    Sketcher.Constraint("DistanceY", -1, 1, 1, 2, Q("2.875 in")),
    Sketcher.Constraint("DistanceY", 0, 2, 0, 1, Q("51.542752 mm")),
])
sketch9.setExpression("Constraints[9]", "Params.sketch9_width")
pad9 = body8.newObject("PartDesign::Pad", "Pad008")
pad9.Profile = sketch9
pad9.setExpression("Length", "Params.pad9_length")
doc.recompute()

body9 = doc.addObject("PartDesign::Body", "Body008")
body9.BaseFeature = body8
boolean = body.newObject("PartDesign::Boolean", "Boolean")
boolean.Type = "Cut"
boolean.addObjects([body9])
doc.recompute()

boolean2 = body7.newObject("PartDesign::Boolean", "Boolean001")
boolean2.Type = "Cut"
boolean2.addObjects([body8])
body10 = doc.addObject("PartDesign::Body", "Body009")

# Sketch on YZ plane
sketch10 = body10.newObject("Sketcher::SketchObject", "Sketch009")
sketch10.AttachmentSupport = (doc.getObject("YZ_Plane009"), [""])
sketch10.MapMode = "FlatFace"
sketch10.addGeometry([
    Part.ArcOfCircle(Part.Circle(V(0, 12.2, 0), V(0, 0, 1), 5.3), math.radians(90), math.radians(233)),  # 0
    Part.LineSegment(V(-3.2, 7.9, 0), V(-3.2, -0.7, 0)),  # 1
    Part.LineSegment(V(-3.2, -0.7, 0), V(1.9, -0.7, 0)),  # 2
    Part.LineSegment(V(1.9, -0.7, 0), V(1.9, 17.5, 0)),  # 3
    Part.LineSegment(V(1.9, 17.5, 0), V(0, 17.5, 0)),  # 4
], False)
sketch10.addConstraint([
    Sketcher.Constraint("Coincident", 0, 2, 1, 1),
    Sketcher.Constraint("Coincident", 1, 2, 2, 1),
    Sketcher.Constraint("Coincident", 2, 2, 3, 1),
    Sketcher.Constraint("Coincident", 3, 2, 4, 1),
    Sketcher.Constraint("Tangent", 4, 2, 0, 1),
    Sketcher.Constraint("Vertical", 1),
    Sketcher.Constraint("Horizontal", 2),
    Sketcher.Constraint("Vertical", 3),
    Sketcher.Constraint("Horizontal", 4),
    Sketcher.Constraint("PointOnObject", 0, 3, -2),
    Sketcher.Constraint("DistanceX", 0, 2, -1, 1, Q("0.125 in")),
    Sketcher.Constraint("DistanceY", -1, 1, 0, 2, Q("0.3125 in")),
    Sketcher.Constraint("DistanceY", -1, 1, 3, 2, Q("0.6875 in")),
    Sketcher.Constraint("DistanceY", 1, 2, 1, 1, Q("8.649428 mm")),
    Sketcher.Constraint("DistanceX", 2, 1, 2, 2, Q("5.110165 mm")),
])
pad10 = body10.newObject("PartDesign::Pad", "Pad009")
pad10.Profile = sketch10
pad10.setExpression("Length", "Params.pad10_length")
pad10.Reversed = True
doc.recompute()

body11 = doc.addObject("PartDesign::Body", "Body010")
body11.BaseFeature = body10
boolean3 = body.newObject("PartDesign::Boolean", "Boolean002")
boolean3.Type = "Cut"
boolean3.addObjects([body11])
doc.recompute()

boolean4 = body5.newObject("PartDesign::Boolean", "Boolean003")
boolean4.Type = "Cut"
boolean4.addObjects([body10])

doc.recompute()
